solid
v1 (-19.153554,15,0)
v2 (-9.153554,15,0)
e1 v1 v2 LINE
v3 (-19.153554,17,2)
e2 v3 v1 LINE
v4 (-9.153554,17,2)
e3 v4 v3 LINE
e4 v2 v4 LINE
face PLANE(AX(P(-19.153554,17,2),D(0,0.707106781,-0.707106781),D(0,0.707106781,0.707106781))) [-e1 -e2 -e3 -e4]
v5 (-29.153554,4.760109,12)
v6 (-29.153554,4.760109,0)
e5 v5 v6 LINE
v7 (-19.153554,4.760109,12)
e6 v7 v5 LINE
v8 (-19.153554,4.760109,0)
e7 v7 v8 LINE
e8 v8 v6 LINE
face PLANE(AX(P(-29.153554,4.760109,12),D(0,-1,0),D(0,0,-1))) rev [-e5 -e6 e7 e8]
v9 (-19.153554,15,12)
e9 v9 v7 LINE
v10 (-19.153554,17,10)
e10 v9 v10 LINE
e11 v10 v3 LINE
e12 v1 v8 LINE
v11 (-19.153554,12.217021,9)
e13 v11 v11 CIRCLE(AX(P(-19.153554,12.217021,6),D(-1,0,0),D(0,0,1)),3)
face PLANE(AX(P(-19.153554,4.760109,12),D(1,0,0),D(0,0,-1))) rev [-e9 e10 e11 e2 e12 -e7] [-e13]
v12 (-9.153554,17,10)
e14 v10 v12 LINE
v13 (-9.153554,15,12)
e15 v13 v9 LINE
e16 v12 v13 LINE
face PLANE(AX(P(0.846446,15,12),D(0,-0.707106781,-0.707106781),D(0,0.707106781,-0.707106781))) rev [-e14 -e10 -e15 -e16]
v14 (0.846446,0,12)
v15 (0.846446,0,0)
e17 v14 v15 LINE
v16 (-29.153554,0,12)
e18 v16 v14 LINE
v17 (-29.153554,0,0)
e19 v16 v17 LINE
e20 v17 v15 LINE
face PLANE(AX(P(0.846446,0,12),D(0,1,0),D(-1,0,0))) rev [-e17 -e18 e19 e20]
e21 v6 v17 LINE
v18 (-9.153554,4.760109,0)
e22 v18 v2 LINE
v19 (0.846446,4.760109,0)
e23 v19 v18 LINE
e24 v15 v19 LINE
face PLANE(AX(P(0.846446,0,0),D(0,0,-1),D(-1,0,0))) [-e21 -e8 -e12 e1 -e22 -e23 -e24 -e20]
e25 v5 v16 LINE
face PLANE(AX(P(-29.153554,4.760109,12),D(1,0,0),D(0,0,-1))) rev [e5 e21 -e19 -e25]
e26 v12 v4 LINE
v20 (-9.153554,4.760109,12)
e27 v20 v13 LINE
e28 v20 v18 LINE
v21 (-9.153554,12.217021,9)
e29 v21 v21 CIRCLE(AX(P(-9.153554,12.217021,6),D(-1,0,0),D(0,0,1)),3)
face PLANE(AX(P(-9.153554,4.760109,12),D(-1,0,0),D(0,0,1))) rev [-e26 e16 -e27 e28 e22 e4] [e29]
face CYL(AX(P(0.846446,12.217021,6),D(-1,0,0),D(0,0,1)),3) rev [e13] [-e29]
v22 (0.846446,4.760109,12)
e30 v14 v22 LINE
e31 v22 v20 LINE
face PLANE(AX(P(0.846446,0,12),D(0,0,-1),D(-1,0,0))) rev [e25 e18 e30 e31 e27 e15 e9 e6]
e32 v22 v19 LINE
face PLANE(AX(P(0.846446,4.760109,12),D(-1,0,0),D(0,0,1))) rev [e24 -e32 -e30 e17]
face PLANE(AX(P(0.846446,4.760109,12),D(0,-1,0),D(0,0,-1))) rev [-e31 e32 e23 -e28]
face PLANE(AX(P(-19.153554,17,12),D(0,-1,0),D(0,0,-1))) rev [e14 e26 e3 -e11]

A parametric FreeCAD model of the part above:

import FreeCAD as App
import Part
import Sketcher
Q = App.Units.Quantity


def edges_at(feature, points):
    """Names of the edges that pass closest to the given points."""
    edges = feature.Shape.Edges
    near = lambda p: min(range(len(edges)), key=lambda i: edges[i].distToShape(Part.Vertex(*p))[0])
    return sorted({f"Edge{near(p) + 1}" for p in points})

doc = App.newDocument("Part")
body = doc.addObject("PartDesign::Body", "Body")

# Sketch on XY plane
sketch1 = body.newObject("Sketcher::SketchObject", "Sketch")
sketch1.AttachmentSupport = (doc.getObject("XY_Plane"), [""])
sketch1.MapMode = "FlatFace"
sketch1.addGeometry([
    Part.LineSegment(App.Vector(-29.2, 0, 0), App.Vector(0.8, 0, 0)),  # 0
    Part.LineSegment(App.Vector(0.8, 0, 0), App.Vector(0.8, 4.8, 0)),  # 1
    Part.LineSegment(App.Vector(0.8, 4.8, 0), App.Vector(-9.2, 4.8, 0)),  # 2
    Part.LineSegment(App.Vector(-9.2, 4.8, 0), App.Vector(-9.2, 17, 0)),  # 3
    Part.LineSegment(App.Vector(-9.2, 17, 0), App.Vector(-19.2, 17, 0)),  # 4
    Part.LineSegment(App.Vector(-19.2, 17, 0), App.Vector(-19.2, 4.8, 0)),  # 5
    Part.LineSegment(App.Vector(-19.2, 4.8, 0), App.Vector(-29.2, 4.8, 0)),  # 6
    Part.LineSegment(App.Vector(-29.2, 4.8, 0), App.Vector(-29.2, 0, 0)),  # 7
], False)
sketch1.addConstraint([
    Sketcher.Constraint("Coincident", 0, 2, 1, 1),
    Sketcher.Constraint("Coincident", 1, 2, 2, 1),
    Sketcher.Constraint("Coincident", 2, 2, 3, 1),
    Sketcher.Constraint("Coincident", 3, 2, 4, 1),
    Sketcher.Constraint("Coincident", 4, 2, 5, 1),
    Sketcher.Constraint("Coincident", 5, 2, 6, 1),
    Sketcher.Constraint("Coincident", 6, 2, 7, 1),
    Sketcher.Constraint("Coincident", 7, 2, 0, 1),
    Sketcher.Constraint("Horizontal", 0),
    Sketcher.Constraint("Vertical", 1),
    Sketcher.Constraint("Horizontal", 2),
    Sketcher.Constraint("Vertical", 3),
    Sketcher.Constraint("Horizontal", 4),
    Sketcher.Constraint("Vertical", 5),
    Sketcher.Constraint("Horizontal", 6),
    Sketcher.Constraint("Vertical", 7),
    Sketcher.Constraint("PointOnObject", 0, 2, -1),
    Sketcher.Constraint("Horizontal", 2, 2, 5, 2),
    Sketcher.Constraint("Equal", 2, 4),
    Sketcher.Constraint("Equal", 4, 6),
    Sketcher.Constraint("DistanceX", 0, 1, 0, 2, Q("30 mm")),
    Sketcher.Constraint("DistanceY", -1, 1, 3, 2, Q("17 mm")),
    Sketcher.Constraint("DistanceY", 1, 1, 1, 2, Q("4.760109 mm")),
    Sketcher.Constraint("DistanceX", -1, 1, 0, 2, Q("0.846446 mm")),
])
pad1 = body.newObject("PartDesign::Pad", "Pad")
pad1.Profile = sketch1
pad1.Length = 12
doc.recompute()

chamfer = body.newObject("PartDesign::Chamfer", "Chamfer")
chamfer.Base = (pad1, edges_at(pad1, [(-14.154, 17, 12), (-14.154, 17, 0)]))
chamfer.Size = 2

# Sketch on YZ plane
sketch2 = body.newObject("Sketcher::SketchObject", "Sketch001")
sketch2.AttachmentSupport = (doc.getObject("YZ_Plane"), [""])
sketch2.MapMode = "FlatFace"
sketch2.AttachmentOffset = App.Placement(App.Vector(0, 0, -19.153554), App.Rotation())
sketch2.addGeometry(Part.Circle(App.Vector(12.2, 6, 0), App.Vector(0, 0, 1), 3), False)
sketch2.addConstraint([
    Sketcher.Constraint("Diameter", 0, Q("6 mm")),
    Sketcher.Constraint("DistanceY", -1, 1, 0, 3, Q("6 mm")),
    Sketcher.Constraint("DistanceX", -1, 1, 0, 3, Q("12.217021 mm")),
])
pocket1 = body.newObject("PartDesign::Pocket", "Pocket")
pocket1.Profile = sketch2
pocket1.Type = "ThroughAll"
pocket1.Reversed = True

doc.recompute()
